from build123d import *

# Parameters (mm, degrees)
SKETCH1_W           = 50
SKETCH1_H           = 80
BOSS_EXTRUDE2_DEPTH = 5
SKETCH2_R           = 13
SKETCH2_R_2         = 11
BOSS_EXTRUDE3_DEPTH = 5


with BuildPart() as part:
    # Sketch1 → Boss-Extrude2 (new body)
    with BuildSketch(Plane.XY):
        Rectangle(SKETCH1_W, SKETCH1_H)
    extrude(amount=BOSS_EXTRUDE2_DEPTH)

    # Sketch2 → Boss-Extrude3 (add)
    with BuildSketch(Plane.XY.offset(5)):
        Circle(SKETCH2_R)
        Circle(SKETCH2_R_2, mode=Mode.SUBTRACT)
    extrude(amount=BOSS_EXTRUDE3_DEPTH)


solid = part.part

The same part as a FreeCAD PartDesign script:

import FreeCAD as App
import Part
import Sketcher

V = App.Vector
Q = App.Units.Quantity


def add_polygon(sketch, points):
    """Adds a closed chain of lines whose ends are joined by coincident constraints."""
    first, n = sketch.GeometryCount, len(points)
    for a, b in zip(points, points[1:] + points[:1]):
        sketch.addGeometry(Part.LineSegment(App.Vector(*a, 0), App.Vector(*b, 0)), False)
    for i in range(n):
        sketch.addConstraint(Sketcher.Constraint("Coincident", first + i, 2, first + (i + 1) % n, 1))

doc = App.newDocument("Part")
body = doc.addObject("PartDesign::Body", "Body")

# Sketch on XY plane
sketch1 = doc.addObject("Sketcher::SketchObject", "Sketch")
body.addObject(sketch1)
sketch1.AttachmentSupport = (doc.XY_Plane, [""])
sketch1.MapMode = "FlatFace"
add_polygon(sketch1, [(-25, 40), (-25, -40), (25, -40), (25, 40)])  # lines 0-3
sketch1.addConstraint(Sketcher.Constraint("Vertical", 0))
sketch1.addConstraint(Sketcher.Constraint("Horizontal", 1))
sketch1.addConstraint(Sketcher.Constraint("Vertical", 2))
sketch1.addConstraint(Sketcher.Constraint("Horizontal", 3))
sketch1.addConstraint(Sketcher.Constraint("Symmetric", 0, 2, 2, 2, -1, 1))
sketch1.addConstraint(Sketcher.Constraint("DistanceX", 1, 1, 1, 2, Q("50 mm")))
sketch1.addConstraint(Sketcher.Constraint("DistanceY", 0, 2, 0, 1, Q("80 mm")))
pad1 = doc.addObject("PartDesign::Pad", "Pad")
body.addObject(pad1)
pad1.Profile = sketch1
pad1.Length = 5

# Sketch on XY plane
sketch2 = doc.addObject("Sketcher::SketchObject", "Sketch001")
body.addObject(sketch2)
sketch2.AttachmentSupport = (doc.XY_Plane, [""])
sketch2.MapMode = "FlatFace"
sketch2.AttachmentOffset = App.Placement(V(0, 0, 5), App.Rotation())
sketch2.addGeometry(Part.Circle(V(0, 0, 0), V(0, 0, 1), 13), False)
sketch2.addGeometry(Part.Circle(V(0, 0, 0), V(0, 0, 1), 11), False)
sketch2.addConstraint(Sketcher.Constraint("Coincident", 0, 3, -1, 1))
sketch2.addConstraint(Sketcher.Constraint("Coincident", 1, 3, -1, 1))
sketch2.addConstraint(Sketcher.Constraint("Diameter", 0, Q("26 mm")))
sketch2.addConstraint(Sketcher.Constraint("Diameter", 1, Q("22 mm")))
pad2 = doc.addObject("PartDesign::Pad", "Pad001")
body.addObject(pad2)
pad2.Profile = sketch2
pad2.Length = 5

doc.recompute()
